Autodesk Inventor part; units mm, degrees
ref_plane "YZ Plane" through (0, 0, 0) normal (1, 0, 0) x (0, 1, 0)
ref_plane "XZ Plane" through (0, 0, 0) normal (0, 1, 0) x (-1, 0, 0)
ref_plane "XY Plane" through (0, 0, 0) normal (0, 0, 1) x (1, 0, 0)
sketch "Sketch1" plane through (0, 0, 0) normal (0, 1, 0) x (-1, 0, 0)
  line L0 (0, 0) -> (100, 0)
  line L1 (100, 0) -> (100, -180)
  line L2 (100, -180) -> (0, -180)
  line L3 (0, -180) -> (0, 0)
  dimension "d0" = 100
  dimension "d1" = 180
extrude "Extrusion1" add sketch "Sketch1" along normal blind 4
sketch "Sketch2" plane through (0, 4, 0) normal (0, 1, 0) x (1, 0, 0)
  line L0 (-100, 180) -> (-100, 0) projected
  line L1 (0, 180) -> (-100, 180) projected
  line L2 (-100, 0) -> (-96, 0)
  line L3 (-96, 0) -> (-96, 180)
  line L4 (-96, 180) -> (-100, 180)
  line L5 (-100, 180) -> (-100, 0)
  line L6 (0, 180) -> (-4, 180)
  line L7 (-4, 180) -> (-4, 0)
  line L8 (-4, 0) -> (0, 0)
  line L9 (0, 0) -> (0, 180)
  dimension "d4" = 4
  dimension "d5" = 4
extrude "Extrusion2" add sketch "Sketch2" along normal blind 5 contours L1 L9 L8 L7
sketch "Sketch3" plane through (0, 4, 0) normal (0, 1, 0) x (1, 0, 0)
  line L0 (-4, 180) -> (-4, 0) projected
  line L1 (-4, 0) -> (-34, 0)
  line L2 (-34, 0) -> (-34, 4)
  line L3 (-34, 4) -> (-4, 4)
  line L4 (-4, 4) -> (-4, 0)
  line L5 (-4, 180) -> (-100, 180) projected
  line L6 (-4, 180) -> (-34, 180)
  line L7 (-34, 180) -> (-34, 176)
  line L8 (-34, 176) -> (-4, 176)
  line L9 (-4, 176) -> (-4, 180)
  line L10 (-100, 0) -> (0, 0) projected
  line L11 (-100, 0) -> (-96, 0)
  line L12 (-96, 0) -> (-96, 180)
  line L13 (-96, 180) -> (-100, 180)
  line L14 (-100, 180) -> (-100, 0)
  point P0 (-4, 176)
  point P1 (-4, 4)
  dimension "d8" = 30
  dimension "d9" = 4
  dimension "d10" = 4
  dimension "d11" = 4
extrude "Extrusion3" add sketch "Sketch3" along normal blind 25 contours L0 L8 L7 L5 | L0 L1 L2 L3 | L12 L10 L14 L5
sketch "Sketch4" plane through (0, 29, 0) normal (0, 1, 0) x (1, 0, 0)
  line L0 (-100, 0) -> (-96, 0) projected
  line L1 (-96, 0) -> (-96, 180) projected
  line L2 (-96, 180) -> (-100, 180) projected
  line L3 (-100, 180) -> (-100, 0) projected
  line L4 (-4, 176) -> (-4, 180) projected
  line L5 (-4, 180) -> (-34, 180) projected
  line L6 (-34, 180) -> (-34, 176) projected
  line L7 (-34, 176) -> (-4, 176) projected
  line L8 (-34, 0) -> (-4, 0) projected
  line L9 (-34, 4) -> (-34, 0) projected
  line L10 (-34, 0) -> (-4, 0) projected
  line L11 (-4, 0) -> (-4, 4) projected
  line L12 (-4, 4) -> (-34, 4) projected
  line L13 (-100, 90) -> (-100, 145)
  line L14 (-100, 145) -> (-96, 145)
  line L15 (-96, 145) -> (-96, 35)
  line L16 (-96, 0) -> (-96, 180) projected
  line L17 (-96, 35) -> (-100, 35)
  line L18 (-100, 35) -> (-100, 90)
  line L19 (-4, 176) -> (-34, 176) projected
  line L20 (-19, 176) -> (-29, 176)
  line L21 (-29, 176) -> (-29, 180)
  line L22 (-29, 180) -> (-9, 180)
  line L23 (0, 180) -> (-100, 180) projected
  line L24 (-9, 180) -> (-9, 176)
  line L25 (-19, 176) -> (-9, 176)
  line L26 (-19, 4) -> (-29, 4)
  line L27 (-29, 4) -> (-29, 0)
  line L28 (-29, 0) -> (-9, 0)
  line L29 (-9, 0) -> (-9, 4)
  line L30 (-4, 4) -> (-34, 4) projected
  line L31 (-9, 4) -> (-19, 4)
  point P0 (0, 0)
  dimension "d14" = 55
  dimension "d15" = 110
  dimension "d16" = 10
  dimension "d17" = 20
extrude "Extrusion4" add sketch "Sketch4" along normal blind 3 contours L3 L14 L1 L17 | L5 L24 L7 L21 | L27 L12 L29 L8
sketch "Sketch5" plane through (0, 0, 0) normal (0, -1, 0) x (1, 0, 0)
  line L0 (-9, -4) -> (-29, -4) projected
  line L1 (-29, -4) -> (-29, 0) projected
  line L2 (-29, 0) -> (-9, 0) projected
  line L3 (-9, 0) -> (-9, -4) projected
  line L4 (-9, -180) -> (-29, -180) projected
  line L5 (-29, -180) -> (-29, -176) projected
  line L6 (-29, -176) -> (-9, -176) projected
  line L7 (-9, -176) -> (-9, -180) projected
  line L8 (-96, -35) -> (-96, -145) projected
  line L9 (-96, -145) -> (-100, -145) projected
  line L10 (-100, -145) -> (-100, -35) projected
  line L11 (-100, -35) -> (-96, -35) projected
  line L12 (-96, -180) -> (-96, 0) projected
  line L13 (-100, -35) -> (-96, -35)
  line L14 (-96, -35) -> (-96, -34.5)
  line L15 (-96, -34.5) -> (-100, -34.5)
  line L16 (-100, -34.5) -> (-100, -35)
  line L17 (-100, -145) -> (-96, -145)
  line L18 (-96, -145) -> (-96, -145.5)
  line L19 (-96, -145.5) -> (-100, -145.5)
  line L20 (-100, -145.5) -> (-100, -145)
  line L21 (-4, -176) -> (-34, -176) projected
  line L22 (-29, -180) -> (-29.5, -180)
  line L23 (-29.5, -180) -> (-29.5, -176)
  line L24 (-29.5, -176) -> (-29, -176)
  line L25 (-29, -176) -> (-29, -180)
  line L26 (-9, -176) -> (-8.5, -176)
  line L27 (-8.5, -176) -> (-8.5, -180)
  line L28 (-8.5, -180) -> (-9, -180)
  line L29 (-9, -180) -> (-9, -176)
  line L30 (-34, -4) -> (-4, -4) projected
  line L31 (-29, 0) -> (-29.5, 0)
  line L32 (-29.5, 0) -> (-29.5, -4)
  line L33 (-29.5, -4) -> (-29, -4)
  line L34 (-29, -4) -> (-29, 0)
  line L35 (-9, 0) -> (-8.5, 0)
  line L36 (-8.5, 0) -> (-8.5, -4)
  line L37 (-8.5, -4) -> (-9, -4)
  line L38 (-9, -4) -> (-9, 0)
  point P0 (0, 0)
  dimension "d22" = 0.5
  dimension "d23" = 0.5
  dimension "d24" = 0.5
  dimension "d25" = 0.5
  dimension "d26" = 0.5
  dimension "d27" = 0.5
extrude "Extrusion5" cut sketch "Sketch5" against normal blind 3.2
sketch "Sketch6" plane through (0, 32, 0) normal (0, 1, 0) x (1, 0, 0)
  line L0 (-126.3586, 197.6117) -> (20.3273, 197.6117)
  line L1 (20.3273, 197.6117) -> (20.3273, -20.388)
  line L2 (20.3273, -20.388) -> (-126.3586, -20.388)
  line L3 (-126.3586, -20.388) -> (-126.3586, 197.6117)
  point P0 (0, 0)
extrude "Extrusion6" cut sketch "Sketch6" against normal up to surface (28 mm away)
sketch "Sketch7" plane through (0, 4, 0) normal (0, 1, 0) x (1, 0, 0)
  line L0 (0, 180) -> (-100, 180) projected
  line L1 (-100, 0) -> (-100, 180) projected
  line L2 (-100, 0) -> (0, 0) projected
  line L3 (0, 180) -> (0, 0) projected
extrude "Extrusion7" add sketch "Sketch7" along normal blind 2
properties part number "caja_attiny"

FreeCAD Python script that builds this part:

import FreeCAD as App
import Part
import Sketcher

V = App.Vector
Q = App.Units.Quantity

doc = App.newDocument("Part")
body = doc.addObject("PartDesign::Body", "Body")

sketch1 = body.newObject("Sketcher::SketchObject", "Sketch")
sketch1.AttachmentSupport = (doc.getObject("XZ_Plane"), [""])
sketch1.MapMode = "FlatFace"
sketch1.addGeometry(Part.LineSegment(V(-100, 0, 0), V(0, 0, 0)), False)
sketch1.addGeometry(Part.LineSegment(V(0, 0, 0), V(0, -180, 0)), False)
sketch1.addGeometry(Part.LineSegment(V(0, -180, 0), V(-100, -180, 0)), False)
sketch1.addGeometry(Part.LineSegment(V(-100, -180, 0), V(-100, 0, 0)), False)
sketch1.addConstraint(Sketcher.Constraint("Coincident", 0, 2, 1, 1))
sketch1.addConstraint(Sketcher.Constraint("Coincident", 1, 2, 2, 1))
sketch1.addConstraint(Sketcher.Constraint("Coincident", 2, 2, 3, 1))
sketch1.addConstraint(Sketcher.Constraint("Coincident", 3, 2, 0, 1))
sketch1.addConstraint(Sketcher.Constraint("Horizontal", 0))
sketch1.addConstraint(Sketcher.Constraint("Vertical", 1))
sketch1.addConstraint(Sketcher.Constraint("Horizontal", 2))
sketch1.addConstraint(Sketcher.Constraint("Vertical", 3))
sketch1.addConstraint(Sketcher.Constraint("Coincident", 0, 2, -1, 1))
sketch1.addConstraint(Sketcher.Constraint("DistanceX", 0, 1, 0, 2, Q("100 mm")))
sketch1.addConstraint(Sketcher.Constraint("DistanceY", 1, 2, 1, 1, Q("180 mm")))
pad1 = body.newObject("PartDesign::Pad", "Pad")
pad1.Profile = sketch1
pad1.Length = 4
pad1.Reversed = True

sketch2 = body.newObject("Sketcher::SketchObject", "Sketch001")
sketch2.AttachmentSupport = (doc.getObject("XZ_Plane"), [""])
sketch2.MapMode = "FlatFace"
sketch2.AttachmentOffset = App.Placement(V(0, 0, -4), App.Rotation())
sketch2.addGeometry(Part.LineSegment(V(0, -180, 0), V(-4, -180, 0)), False)
sketch2.addGeometry(Part.LineSegment(V(-4, -180, 0), V(-4, 0, 0)), False)
sketch2.addGeometry(Part.LineSegment(V(-4, 0, 0), V(0, 0, 0)), False)
sketch2.addGeometry(Part.LineSegment(V(0, 0, 0), V(0, -180, 0)), False)
sketch2.addConstraint(Sketcher.Constraint("Coincident", 0, 2, 1, 1))
sketch2.addConstraint(Sketcher.Constraint("Coincident", 1, 2, 2, 1))
sketch2.addConstraint(Sketcher.Constraint("Coincident", 2, 2, 3, 1))
sketch2.addConstraint(Sketcher.Constraint("Coincident", 3, 2, 0, 1))
sketch2.addConstraint(Sketcher.Constraint("Horizontal", 0))
sketch2.addConstraint(Sketcher.Constraint("Vertical", 1))
sketch2.addConstraint(Sketcher.Constraint("Horizontal", 2))
sketch2.addConstraint(Sketcher.Constraint("Vertical", 3))
sketch2.addConstraint(Sketcher.Constraint("Coincident", 2, 2, -1, 1))
sketch2.addConstraint(Sketcher.Constraint("DistanceX", 0, 2, 0, 1, Q("4 mm")))
sketch2.addConstraint(Sketcher.Constraint("DistanceY", 1, 1, 1, 2, Q("180 mm")))
pad2 = body.newObject("PartDesign::Pad", "Pad001")
pad2.Profile = sketch2
pad2.Length = 5
pad2.Reversed = True

sketch3 = body.newObject("Sketcher::SketchObject", "Sketch002")
sketch3.AttachmentSupport = (doc.getObject("XZ_Plane"), [""])
sketch3.MapMode = "FlatFace"
sketch3.AttachmentOffset = App.Placement(V(0, 0, -4), App.Rotation())
sketch3.addGeometry(Part.LineSegment(V(-4, -176, 0), V(-4, -180, 0)), False)
sketch3.addGeometry(Part.LineSegment(V(-4, -180, 0), V(-34, -180, 0)), False)
sketch3.addGeometry(Part.LineSegment(V(-34, -180, 0), V(-34, -176, 0)), False)
sketch3.addGeometry(Part.LineSegment(V(-34, -176, 0), V(-4, -176, 0)), False)
sketch3.addGeometry(Part.LineSegment(V(-4, 0, 0), V(-4, -4, 0)), False)
sketch3.addGeometry(Part.LineSegment(V(-4, -4, 0), V(-34, -4, 0)), False)
sketch3.addGeometry(Part.LineSegment(V(-34, -4, 0), V(-34, 0, 0)), False)
sketch3.addGeometry(Part.LineSegment(V(-34, 0, 0), V(-4, 0, 0)), False)
sketch3.addGeometry(Part.LineSegment(V(-96, 0, 0), V(-96, -180, 0)), False)
sketch3.addGeometry(Part.LineSegment(V(-96, -180, 0), V(-100, -180, 0)), False)
sketch3.addGeometry(Part.LineSegment(V(-100, -180, 0), V(-100, 0, 0)), False)
sketch3.addGeometry(Part.LineSegment(V(-100, 0, 0), V(-96, 0, 0)), False)
sketch3.addConstraint(Sketcher.Constraint("Coincident", 0, 2, 1, 1))
sketch3.addConstraint(Sketcher.Constraint("Coincident", 1, 2, 2, 1))
sketch3.addConstraint(Sketcher.Constraint("Coincident", 2, 2, 3, 1))
sketch3.addConstraint(Sketcher.Constraint("Coincident", 3, 2, 0, 1))
sketch3.addConstraint(Sketcher.Constraint("Coincident", 4, 2, 5, 1))
sketch3.addConstraint(Sketcher.Constraint("Coincident", 5, 2, 6, 1))
sketch3.addConstraint(Sketcher.Constraint("Coincident", 6, 2, 7, 1))
sketch3.addConstraint(Sketcher.Constraint("Coincident", 7, 2, 4, 1))
sketch3.addConstraint(Sketcher.Constraint("Coincident", 8, 2, 9, 1))
sketch3.addConstraint(Sketcher.Constraint("Coincident", 9, 2, 10, 1))
sketch3.addConstraint(Sketcher.Constraint("Coincident", 10, 2, 11, 1))
sketch3.addConstraint(Sketcher.Constraint("Coincident", 11, 2, 8, 1))
sketch3.addConstraint(Sketcher.Constraint("Vertical", 0))
sketch3.addConstraint(Sketcher.Constraint("Horizontal", 1))
sketch3.addConstraint(Sketcher.Constraint("Vertical", 2))
sketch3.addConstraint(Sketcher.Constraint("Horizontal", 3))
sketch3.addConstraint(Sketcher.Constraint("Vertical", 4))
sketch3.addConstraint(Sketcher.Constraint("Horizontal", 5))
sketch3.addConstraint(Sketcher.Constraint("Vertical", 6))
sketch3.addConstraint(Sketcher.Constraint("Horizontal", 7))
sketch3.addConstraint(Sketcher.Constraint("Vertical", 8))
sketch3.addConstraint(Sketcher.Constraint("Horizontal", 9))
sketch3.addConstraint(Sketcher.Constraint("Vertical", 10))
sketch3.addConstraint(Sketcher.Constraint("Horizontal", 11))
sketch3.addConstraint(Sketcher.Constraint("PointOnObject", 6, 2, -1))
sketch3.addConstraint(Sketcher.Constraint("PointOnObject", 10, 2, -1))
sketch3.addConstraint(Sketcher.Constraint("Horizontal", 1, 2, 8, 2))
sketch3.addConstraint(Sketcher.Constraint("Vertical", 3, 2, 4, 2))
sketch3.addConstraint(Sketcher.Constraint("Vertical", 2, 2, 5, 2))
sketch3.addConstraint(Sketcher.Constraint("Equal", 11, 0))
sketch3.addConstraint(Sketcher.Constraint("Equal", 2, 4))
sketch3.addConstraint(Sketcher.Constraint("DistanceX", 1, 2, 1, 1, Q("30 mm")))
sketch3.addConstraint(Sketcher.Constraint("DistanceX", 9, 2, 9, 1, Q("4 mm")))
sketch3.addConstraint(Sketcher.Constraint("DistanceX", 0, 2, -1, 1, Q("4 mm")))
sketch3.addConstraint(Sketcher.Constraint("DistanceY", 8, 2, 8, 1, Q("180 mm")))
sketch3.addConstraint(Sketcher.Constraint("DistanceX", 8, 2, -1, 1, Q("96 mm")))
pad3 = body.newObject("PartDesign::Pad", "Pad002")
pad3.Profile = sketch3
pad3.Length = 25
pad3.Reversed = True

sketch4 = body.newObject("Sketcher::SketchObject", "Sketch003")
sketch4.AttachmentSupport = (doc.getObject("XZ_Plane"), [""])
sketch4.MapMode = "FlatFace"
sketch4.AttachmentOffset = App.Placement(V(0, 0, -29), App.Rotation())
sketch4.addGeometry(Part.LineSegment(V(-100, -145, 0), V(-100, -35, 0)), False)
sketch4.addGeometry(Part.LineSegment(V(-100, -35, 0), V(-96, -35, 0)), False)
sketch4.addGeometry(Part.LineSegment(V(-96, -35, 0), V(-96, -145, 0)), False)
sketch4.addGeometry(Part.LineSegment(V(-96, -145, 0), V(-100, -145, 0)), False)
sketch4.addGeometry(Part.LineSegment(V(-9, -180, 0), V(-29, -180, 0)), False)
sketch4.addGeometry(Part.LineSegment(V(-29, -180, 0), V(-29, -176, 0)), False)
sketch4.addGeometry(Part.LineSegment(V(-29, -176, 0), V(-9, -176, 0)), False)
sketch4.addGeometry(Part.LineSegment(V(-9, -176, 0), V(-9, -180, 0)), False)
sketch4.addGeometry(Part.LineSegment(V(-29, -4, 0), V(-29, 0, 0)), False)
sketch4.addGeometry(Part.LineSegment(V(-29, 0, 0), V(-9, 0, 0)), False)
sketch4.addGeometry(Part.LineSegment(V(-9, 0, 0), V(-9, -4, 0)), False)
sketch4.addGeometry(Part.LineSegment(V(-9, -4, 0), V(-29, -4, 0)), False)
sketch4.addConstraint(Sketcher.Constraint("Coincident", 0, 2, 1, 1))
sketch4.addConstraint(Sketcher.Constraint("Coincident", 1, 2, 2, 1))
sketch4.addConstraint(Sketcher.Constraint("Coincident", 2, 2, 3, 1))
sketch4.addConstraint(Sketcher.Constraint("Coincident", 3, 2, 0, 1))
sketch4.addConstraint(Sketcher.Constraint("Coincident", 4, 2, 5, 1))
sketch4.addConstraint(Sketcher.Constraint("Coincident", 5, 2, 6, 1))
sketch4.addConstraint(Sketcher.Constraint("Coincident", 6, 2, 7, 1))
sketch4.addConstraint(Sketcher.Constraint("Coincident", 7, 2, 4, 1))
sketch4.addConstraint(Sketcher.Constraint("Coincident", 8, 2, 9, 1))
sketch4.addConstraint(Sketcher.Constraint("Coincident", 9, 2, 10, 1))
sketch4.addConstraint(Sketcher.Constraint("Coincident", 10, 2, 11, 1))
sketch4.addConstraint(Sketcher.Constraint("Coincident", 11, 2, 8, 1))
sketch4.addConstraint(Sketcher.Constraint("Vertical", 0))
sketch4.addConstraint(Sketcher.Constraint("Horizontal", 1))
sketch4.addConstraint(Sketcher.Constraint("Vertical", 2))
sketch4.addConstraint(Sketcher.Constraint("Horizontal", 3))
sketch4.addConstraint(Sketcher.Constraint("Horizontal", 4))
sketch4.addConstraint(Sketcher.Constraint("Vertical", 5))
sketch4.addConstraint(Sketcher.Constraint("Horizontal", 6))
sketch4.addConstraint(Sketcher.Constraint("Vertical", 7))
sketch4.addConstraint(Sketcher.Constraint("Vertical", 8))
sketch4.addConstraint(Sketcher.Constraint("Horizontal", 9))
sketch4.addConstraint(Sketcher.Constraint("Vertical", 10))
sketch4.addConstraint(Sketcher.Constraint("Horizontal", 11))
sketch4.addConstraint(Sketcher.Constraint("PointOnObject", 8, 2, -1))
sketch4.addConstraint(Sketcher.Constraint("Vertical", 5, 2, 8, 2))
sketch4.addConstraint(Sketcher.Constraint("Vertical", 7, 2, 9, 2))
sketch4.addConstraint(Sketcher.Constraint("Equal", 3, 5))
sketch4.addConstraint(Sketcher.Constraint("Equal", 7, 8))
sketch4.addConstraint(Sketcher.Constraint("DistanceX", 4, 2, 4, 1, Q("20 mm")))
sketch4.addConstraint(Sketcher.Constraint("DistanceY", 0, 1, 0, 2, Q("110 mm")))
sketch4.addConstraint(Sketcher.Constraint("DistanceX", 1, 1, 1, 2, Q("4 mm")))
sketch4.addConstraint(Sketcher.Constraint("DistanceX", 0, 2, -1, 1, Q("100 mm")))
sketch4.addConstraint(Sketcher.Constraint("DistanceY", 0, 2, -1, 1, Q("35 mm")))
sketch4.addConstraint(Sketcher.Constraint("DistanceX", 4, 2, -1, 1, Q("29 mm")))
sketch4.addConstraint(Sketcher.Constraint("DistanceY", 4, 2, -1, 1, Q("180 mm")))
pad4 = body.newObject("PartDesign::Pad", "Pad003")
pad4.Profile = sketch4
pad4.Length = 3
pad4.Reversed = True

sketch5 = body.newObject("Sketcher::SketchObject", "Sketch004")
sketch5.AttachmentSupport = (doc.getObject("XZ_Plane"), [""])
sketch5.MapMode = "FlatFace"
sketch5.addGeometry(Part.LineSegment(V(-8.5, -4, 0), V(-8.5, 0, 0)), False)
sketch5.addGeometry(Part.LineSegment(V(-8.5, 0, 0), V(-29.5, 0, 0)), False)
sketch5.addGeometry(Part.LineSegment(V(-29.5, 0, 0), V(-29.5, -4, 0)), False)
sketch5.addGeometry(Part.LineSegment(V(-29.5, -4, 0), V(-8.5, -4, 0)), False)
sketch5.addGeometry(Part.LineSegment(V(-8.5, -180, 0), V(-8.5, -176, 0)), False)
sketch5.addGeometry(Part.LineSegment(V(-8.5, -176, 0), V(-29.5, -176, 0)), False)
sketch5.addGeometry(Part.LineSegment(V(-29.5, -176, 0), V(-29.5, -180, 0)), False)
sketch5.addGeometry(Part.LineSegment(V(-29.5, -180, 0), V(-8.5, -180, 0)), False)
sketch5.addGeometry(Part.LineSegment(V(-96, -34.5, 0), V(-100, -34.5, 0)), False)
sketch5.addGeometry(Part.LineSegment(V(-100, -34.5, 0), V(-100, -145.5, 0)), False)
sketch5.addGeometry(Part.LineSegment(V(-100, -145.5, 0), V(-96, -145.5, 0)), False)
sketch5.addGeometry(Part.LineSegment(V(-96, -145.5, 0), V(-96, -34.5, 0)), False)
sketch5.addConstraint(Sketcher.Constraint("Coincident", 0, 2, 1, 1))
sketch5.addConstraint(Sketcher.Constraint("Coincident", 1, 2, 2, 1))
sketch5.addConstraint(Sketcher.Constraint("Coincident", 2, 2, 3, 1))
sketch5.addConstraint(Sketcher.Constraint("Coincident", 3, 2, 0, 1))
sketch5.addConstraint(Sketcher.Constraint("Coincident", 4, 2, 5, 1))
sketch5.addConstraint(Sketcher.Constraint("Coincident", 5, 2, 6, 1))
sketch5.addConstraint(Sketcher.Constraint("Coincident", 6, 2, 7, 1))
sketch5.addConstraint(Sketcher.Constraint("Coincident", 7, 2, 4, 1))
sketch5.addConstraint(Sketcher.Constraint("Coincident", 8, 2, 9, 1))
sketch5.addConstraint(Sketcher.Constraint("Coincident", 9, 2, 10, 1))
sketch5.addConstraint(Sketcher.Constraint("Coincident", 10, 2, 11, 1))
sketch5.addConstraint(Sketcher.Constraint("Coincident", 11, 2, 8, 1))
sketch5.addConstraint(Sketcher.Constraint("Vertical", 0))
sketch5.addConstraint(Sketcher.Constraint("Horizontal", 1))
sketch5.addConstraint(Sketcher.Constraint("Vertical", 2))
sketch5.addConstraint(Sketcher.Constraint("Horizontal", 3))
sketch5.addConstraint(Sketcher.Constraint("Vertical", 4))
sketch5.addConstraint(Sketcher.Constraint("Horizontal", 5))
sketch5.addConstraint(Sketcher.Constraint("Vertical", 6))
sketch5.addConstraint(Sketcher.Constraint("Horizontal", 7))
sketch5.addConstraint(Sketcher.Constraint("Horizontal", 8))
sketch5.addConstraint(Sketcher.Constraint("Vertical", 9))
sketch5.addConstraint(Sketcher.Constraint("Horizontal", 10))
sketch5.addConstraint(Sketcher.Constraint("Vertical", 11))
sketch5.addConstraint(Sketcher.Constraint("PointOnObject", 0, 2, -1))
sketch5.addConstraint(Sketcher.Constraint("Vertical", 3, 2, 4, 2))
sketch5.addConstraint(Sketcher.Constraint("Vertical", 2, 2, 5, 2))
sketch5.addConstraint(Sketcher.Constraint("Equal", 10, 0))
sketch5.addConstraint(Sketcher.Constraint("Equal", 2, 4))
sketch5.addConstraint(Sketcher.Constraint("DistanceX", 1, 2, 1, 1, Q("21 mm")))
sketch5.addConstraint(Sketcher.Constraint("DistanceX", 8, 2, 8, 1, Q("4 mm")))
sketch5.addConstraint(Sketcher.Constraint("DistanceY", 9, 2, 9, 1, Q("111 mm")))
sketch5.addConstraint(Sketcher.Constraint("DistanceY", 4, 2, -1, 1, Q("176 mm")))
sketch5.addConstraint(Sketcher.Constraint("DistanceX", 8, 2, -1, 1, Q("100 mm")))
sketch5.addConstraint(Sketcher.Constraint("DistanceX", 0, 2, -1, 1, Q("8.5 mm")))
sketch5.addConstraint(Sketcher.Constraint("DistanceY", 8, 2, -1, 1, Q("34.5 mm")))
pocket1 = body.newObject("PartDesign::Pocket", "Pocket")
pocket1.Profile = sketch5
pocket1.Length = 3.2

sketch6 = body.newObject("Sketcher::SketchObject", "Sketch005")
sketch6.AttachmentSupport = (doc.getObject("XZ_Plane"), [""])
sketch6.MapMode = "FlatFace"
sketch6.AttachmentOffset = App.Placement(V(0, 0, -32), App.Rotation())
sketch6.addGeometry(Part.LineSegment(V(20, -198, 0), V(-126, -198, 0)), False)
sketch6.addGeometry(Part.LineSegment(V(-126, -198, 0), V(-126, 20, 0)), False)
sketch6.addGeometry(Part.LineSegment(V(-126, 20, 0), V(20, 20, 0)), False)
sketch6.addGeometry(Part.LineSegment(V(20, 20, 0), V(20, -198, 0)), False)
sketch6.addConstraint(Sketcher.Constraint("Coincident", 0, 2, 1, 1))
sketch6.addConstraint(Sketcher.Constraint("Coincident", 1, 2, 2, 1))
sketch6.addConstraint(Sketcher.Constraint("Coincident", 2, 2, 3, 1))
sketch6.addConstraint(Sketcher.Constraint("Coincident", 3, 2, 0, 1))
sketch6.addConstraint(Sketcher.Constraint("Horizontal", 0))
sketch6.addConstraint(Sketcher.Constraint("Vertical", 1))
sketch6.addConstraint(Sketcher.Constraint("Horizontal", 2))
sketch6.addConstraint(Sketcher.Constraint("Vertical", 3))
sketch6.addConstraint(Sketcher.Constraint("DistanceX", 0, 2, 0, 1, Q("146.686 mm")))
sketch6.addConstraint(Sketcher.Constraint("DistanceY", 1, 1, 1, 2, Q("217.9997 mm")))
sketch6.addConstraint(Sketcher.Constraint("DistanceY", -1, 1, 1, 2, Q("20.388 mm")))
sketch6.addConstraint(Sketcher.Constraint("DistanceX", 0, 2, -1, 1, Q("126.3586 mm")))
pocket2 = body.newObject("PartDesign::Pocket", "Pocket001")
pocket2.Profile = sketch6
pocket2.Length = 28
pocket2.Reversed = True

sketch7 = body.newObject("Sketcher::SketchObject", "Sketch006")
sketch7.AttachmentSupport = (doc.getObject("XZ_Plane"), [""])
sketch7.MapMode = "FlatFace"
sketch7.AttachmentOffset = App.Placement(V(0, 0, -4), App.Rotation())
sketch7.addGeometry(Part.LineSegment(V(0, 0, 0), V(0, -180, 0)), False)
sketch7.addGeometry(Part.LineSegment(V(0, -180, 0), V(-100, -180, 0)), False)
sketch7.addGeometry(Part.LineSegment(V(-100, -180, 0), V(-100, 0, 0)), False)
sketch7.addGeometry(Part.LineSegment(V(-100, 0, 0), V(0, 0, 0)), False)
sketch7.addConstraint(Sketcher.Constraint("Coincident", 0, 2, 1, 1))
sketch7.addConstraint(Sketcher.Constraint("Coincident", 1, 2, 2, 1))
sketch7.addConstraint(Sketcher.Constraint("Coincident", 2, 2, 3, 1))
sketch7.addConstraint(Sketcher.Constraint("Coincident", 3, 2, 0, 1))
sketch7.addConstraint(Sketcher.Constraint("Vertical", 0))
sketch7.addConstraint(Sketcher.Constraint("Horizontal", 1))
sketch7.addConstraint(Sketcher.Constraint("Vertical", 2))
sketch7.addConstraint(Sketcher.Constraint("Horizontal", 3))
sketch7.addConstraint(Sketcher.Constraint("Coincident", 3, 2, -1, 1))
sketch7.addConstraint(Sketcher.Constraint("DistanceX", 1, 2, 1, 1, Q("100 mm")))
sketch7.addConstraint(Sketcher.Constraint("DistanceY", 0, 2, 0, 1, Q("180 mm")))
pad5 = body.newObject("PartDesign::Pad", "Pad004")
pad5.Profile = sketch7
pad5.Length = 2
pad5.Reversed = True

doc.recompute()
